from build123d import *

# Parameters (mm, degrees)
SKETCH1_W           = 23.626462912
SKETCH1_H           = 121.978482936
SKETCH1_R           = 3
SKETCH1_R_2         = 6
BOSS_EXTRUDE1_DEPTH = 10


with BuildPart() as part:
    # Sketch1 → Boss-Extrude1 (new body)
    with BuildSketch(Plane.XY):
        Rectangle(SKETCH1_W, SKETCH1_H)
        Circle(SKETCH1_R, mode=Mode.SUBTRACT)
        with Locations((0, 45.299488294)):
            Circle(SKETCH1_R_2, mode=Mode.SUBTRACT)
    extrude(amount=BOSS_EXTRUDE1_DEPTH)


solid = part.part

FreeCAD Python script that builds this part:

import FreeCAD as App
import Part
import Sketcher


def add_polygon(sketch, points):
    """Adds a closed chain of lines whose ends are joined by coincident constraints."""
    first, n = sketch.GeometryCount, len(points)
    for a, b in zip(points, points[1:] + points[:1]):
        sketch.addGeometry(Part.LineSegment(App.Vector(*a, 0), App.Vector(*b, 0)), False)
    for i in range(n):
        sketch.addConstraint(Sketcher.Constraint("Coincident", first + i, 2, first + (i + 1) % n, 1))

doc = App.newDocument("Part")
body = doc.addObject("PartDesign::Body", "Body")

# Sketch on XY plane
sketch1 = body.newObject("Sketcher::SketchObject", "Sketch")
sketch1.AttachmentSupport = (doc.getObject("XY_Plane"), [""])
sketch1.MapMode = "FlatFace"
add_polygon(sketch1, [(-11.813231, 60.989241), (-11.813231, -60.989241), (11.813231, -60.989241), (11.813231, 60.989241)])  # lines 0-3
sketch1.addGeometry(Part.Circle(App.Vector(0, 0, 0), App.Vector(0, 0, 1), 3), False)  # 4
sketch1.addGeometry(Part.Circle(App.Vector(0, 45.299488, 0), App.Vector(0, 0, 1), 6), False)  # 5
sketch1.addConstraint([
    Sketcher.Constraint("Vertical", 0),
    Sketcher.Constraint("Horizontal", 1),
    Sketcher.Constraint("Vertical", 2),
    Sketcher.Constraint("Horizontal", 3),
    Sketcher.Constraint("Coincident", 4, 3, -1, 1),
    Sketcher.Constraint("Symmetric", 0, 2, 2, 2, -1, 1),
    Sketcher.Constraint("PointOnObject", 5, 3, -2),
    Sketcher.Constraint("Diameter", 4, 6.0),
    Sketcher.Constraint("Diameter", 5, 12.0),
    Sketcher.Constraint("DistanceX", 1, 1, 1, 2, 23.626463),
    Sketcher.Constraint("DistanceY", 0, 2, 0, 1, 121.978483),
    Sketcher.Constraint("DistanceY", -1, 1, 5, 3, 45.299488),
])
pad1 = body.newObject("PartDesign::Pad", "Pad")
pad1.Profile = sketch1
pad1.Length = 10

doc.recompute()
